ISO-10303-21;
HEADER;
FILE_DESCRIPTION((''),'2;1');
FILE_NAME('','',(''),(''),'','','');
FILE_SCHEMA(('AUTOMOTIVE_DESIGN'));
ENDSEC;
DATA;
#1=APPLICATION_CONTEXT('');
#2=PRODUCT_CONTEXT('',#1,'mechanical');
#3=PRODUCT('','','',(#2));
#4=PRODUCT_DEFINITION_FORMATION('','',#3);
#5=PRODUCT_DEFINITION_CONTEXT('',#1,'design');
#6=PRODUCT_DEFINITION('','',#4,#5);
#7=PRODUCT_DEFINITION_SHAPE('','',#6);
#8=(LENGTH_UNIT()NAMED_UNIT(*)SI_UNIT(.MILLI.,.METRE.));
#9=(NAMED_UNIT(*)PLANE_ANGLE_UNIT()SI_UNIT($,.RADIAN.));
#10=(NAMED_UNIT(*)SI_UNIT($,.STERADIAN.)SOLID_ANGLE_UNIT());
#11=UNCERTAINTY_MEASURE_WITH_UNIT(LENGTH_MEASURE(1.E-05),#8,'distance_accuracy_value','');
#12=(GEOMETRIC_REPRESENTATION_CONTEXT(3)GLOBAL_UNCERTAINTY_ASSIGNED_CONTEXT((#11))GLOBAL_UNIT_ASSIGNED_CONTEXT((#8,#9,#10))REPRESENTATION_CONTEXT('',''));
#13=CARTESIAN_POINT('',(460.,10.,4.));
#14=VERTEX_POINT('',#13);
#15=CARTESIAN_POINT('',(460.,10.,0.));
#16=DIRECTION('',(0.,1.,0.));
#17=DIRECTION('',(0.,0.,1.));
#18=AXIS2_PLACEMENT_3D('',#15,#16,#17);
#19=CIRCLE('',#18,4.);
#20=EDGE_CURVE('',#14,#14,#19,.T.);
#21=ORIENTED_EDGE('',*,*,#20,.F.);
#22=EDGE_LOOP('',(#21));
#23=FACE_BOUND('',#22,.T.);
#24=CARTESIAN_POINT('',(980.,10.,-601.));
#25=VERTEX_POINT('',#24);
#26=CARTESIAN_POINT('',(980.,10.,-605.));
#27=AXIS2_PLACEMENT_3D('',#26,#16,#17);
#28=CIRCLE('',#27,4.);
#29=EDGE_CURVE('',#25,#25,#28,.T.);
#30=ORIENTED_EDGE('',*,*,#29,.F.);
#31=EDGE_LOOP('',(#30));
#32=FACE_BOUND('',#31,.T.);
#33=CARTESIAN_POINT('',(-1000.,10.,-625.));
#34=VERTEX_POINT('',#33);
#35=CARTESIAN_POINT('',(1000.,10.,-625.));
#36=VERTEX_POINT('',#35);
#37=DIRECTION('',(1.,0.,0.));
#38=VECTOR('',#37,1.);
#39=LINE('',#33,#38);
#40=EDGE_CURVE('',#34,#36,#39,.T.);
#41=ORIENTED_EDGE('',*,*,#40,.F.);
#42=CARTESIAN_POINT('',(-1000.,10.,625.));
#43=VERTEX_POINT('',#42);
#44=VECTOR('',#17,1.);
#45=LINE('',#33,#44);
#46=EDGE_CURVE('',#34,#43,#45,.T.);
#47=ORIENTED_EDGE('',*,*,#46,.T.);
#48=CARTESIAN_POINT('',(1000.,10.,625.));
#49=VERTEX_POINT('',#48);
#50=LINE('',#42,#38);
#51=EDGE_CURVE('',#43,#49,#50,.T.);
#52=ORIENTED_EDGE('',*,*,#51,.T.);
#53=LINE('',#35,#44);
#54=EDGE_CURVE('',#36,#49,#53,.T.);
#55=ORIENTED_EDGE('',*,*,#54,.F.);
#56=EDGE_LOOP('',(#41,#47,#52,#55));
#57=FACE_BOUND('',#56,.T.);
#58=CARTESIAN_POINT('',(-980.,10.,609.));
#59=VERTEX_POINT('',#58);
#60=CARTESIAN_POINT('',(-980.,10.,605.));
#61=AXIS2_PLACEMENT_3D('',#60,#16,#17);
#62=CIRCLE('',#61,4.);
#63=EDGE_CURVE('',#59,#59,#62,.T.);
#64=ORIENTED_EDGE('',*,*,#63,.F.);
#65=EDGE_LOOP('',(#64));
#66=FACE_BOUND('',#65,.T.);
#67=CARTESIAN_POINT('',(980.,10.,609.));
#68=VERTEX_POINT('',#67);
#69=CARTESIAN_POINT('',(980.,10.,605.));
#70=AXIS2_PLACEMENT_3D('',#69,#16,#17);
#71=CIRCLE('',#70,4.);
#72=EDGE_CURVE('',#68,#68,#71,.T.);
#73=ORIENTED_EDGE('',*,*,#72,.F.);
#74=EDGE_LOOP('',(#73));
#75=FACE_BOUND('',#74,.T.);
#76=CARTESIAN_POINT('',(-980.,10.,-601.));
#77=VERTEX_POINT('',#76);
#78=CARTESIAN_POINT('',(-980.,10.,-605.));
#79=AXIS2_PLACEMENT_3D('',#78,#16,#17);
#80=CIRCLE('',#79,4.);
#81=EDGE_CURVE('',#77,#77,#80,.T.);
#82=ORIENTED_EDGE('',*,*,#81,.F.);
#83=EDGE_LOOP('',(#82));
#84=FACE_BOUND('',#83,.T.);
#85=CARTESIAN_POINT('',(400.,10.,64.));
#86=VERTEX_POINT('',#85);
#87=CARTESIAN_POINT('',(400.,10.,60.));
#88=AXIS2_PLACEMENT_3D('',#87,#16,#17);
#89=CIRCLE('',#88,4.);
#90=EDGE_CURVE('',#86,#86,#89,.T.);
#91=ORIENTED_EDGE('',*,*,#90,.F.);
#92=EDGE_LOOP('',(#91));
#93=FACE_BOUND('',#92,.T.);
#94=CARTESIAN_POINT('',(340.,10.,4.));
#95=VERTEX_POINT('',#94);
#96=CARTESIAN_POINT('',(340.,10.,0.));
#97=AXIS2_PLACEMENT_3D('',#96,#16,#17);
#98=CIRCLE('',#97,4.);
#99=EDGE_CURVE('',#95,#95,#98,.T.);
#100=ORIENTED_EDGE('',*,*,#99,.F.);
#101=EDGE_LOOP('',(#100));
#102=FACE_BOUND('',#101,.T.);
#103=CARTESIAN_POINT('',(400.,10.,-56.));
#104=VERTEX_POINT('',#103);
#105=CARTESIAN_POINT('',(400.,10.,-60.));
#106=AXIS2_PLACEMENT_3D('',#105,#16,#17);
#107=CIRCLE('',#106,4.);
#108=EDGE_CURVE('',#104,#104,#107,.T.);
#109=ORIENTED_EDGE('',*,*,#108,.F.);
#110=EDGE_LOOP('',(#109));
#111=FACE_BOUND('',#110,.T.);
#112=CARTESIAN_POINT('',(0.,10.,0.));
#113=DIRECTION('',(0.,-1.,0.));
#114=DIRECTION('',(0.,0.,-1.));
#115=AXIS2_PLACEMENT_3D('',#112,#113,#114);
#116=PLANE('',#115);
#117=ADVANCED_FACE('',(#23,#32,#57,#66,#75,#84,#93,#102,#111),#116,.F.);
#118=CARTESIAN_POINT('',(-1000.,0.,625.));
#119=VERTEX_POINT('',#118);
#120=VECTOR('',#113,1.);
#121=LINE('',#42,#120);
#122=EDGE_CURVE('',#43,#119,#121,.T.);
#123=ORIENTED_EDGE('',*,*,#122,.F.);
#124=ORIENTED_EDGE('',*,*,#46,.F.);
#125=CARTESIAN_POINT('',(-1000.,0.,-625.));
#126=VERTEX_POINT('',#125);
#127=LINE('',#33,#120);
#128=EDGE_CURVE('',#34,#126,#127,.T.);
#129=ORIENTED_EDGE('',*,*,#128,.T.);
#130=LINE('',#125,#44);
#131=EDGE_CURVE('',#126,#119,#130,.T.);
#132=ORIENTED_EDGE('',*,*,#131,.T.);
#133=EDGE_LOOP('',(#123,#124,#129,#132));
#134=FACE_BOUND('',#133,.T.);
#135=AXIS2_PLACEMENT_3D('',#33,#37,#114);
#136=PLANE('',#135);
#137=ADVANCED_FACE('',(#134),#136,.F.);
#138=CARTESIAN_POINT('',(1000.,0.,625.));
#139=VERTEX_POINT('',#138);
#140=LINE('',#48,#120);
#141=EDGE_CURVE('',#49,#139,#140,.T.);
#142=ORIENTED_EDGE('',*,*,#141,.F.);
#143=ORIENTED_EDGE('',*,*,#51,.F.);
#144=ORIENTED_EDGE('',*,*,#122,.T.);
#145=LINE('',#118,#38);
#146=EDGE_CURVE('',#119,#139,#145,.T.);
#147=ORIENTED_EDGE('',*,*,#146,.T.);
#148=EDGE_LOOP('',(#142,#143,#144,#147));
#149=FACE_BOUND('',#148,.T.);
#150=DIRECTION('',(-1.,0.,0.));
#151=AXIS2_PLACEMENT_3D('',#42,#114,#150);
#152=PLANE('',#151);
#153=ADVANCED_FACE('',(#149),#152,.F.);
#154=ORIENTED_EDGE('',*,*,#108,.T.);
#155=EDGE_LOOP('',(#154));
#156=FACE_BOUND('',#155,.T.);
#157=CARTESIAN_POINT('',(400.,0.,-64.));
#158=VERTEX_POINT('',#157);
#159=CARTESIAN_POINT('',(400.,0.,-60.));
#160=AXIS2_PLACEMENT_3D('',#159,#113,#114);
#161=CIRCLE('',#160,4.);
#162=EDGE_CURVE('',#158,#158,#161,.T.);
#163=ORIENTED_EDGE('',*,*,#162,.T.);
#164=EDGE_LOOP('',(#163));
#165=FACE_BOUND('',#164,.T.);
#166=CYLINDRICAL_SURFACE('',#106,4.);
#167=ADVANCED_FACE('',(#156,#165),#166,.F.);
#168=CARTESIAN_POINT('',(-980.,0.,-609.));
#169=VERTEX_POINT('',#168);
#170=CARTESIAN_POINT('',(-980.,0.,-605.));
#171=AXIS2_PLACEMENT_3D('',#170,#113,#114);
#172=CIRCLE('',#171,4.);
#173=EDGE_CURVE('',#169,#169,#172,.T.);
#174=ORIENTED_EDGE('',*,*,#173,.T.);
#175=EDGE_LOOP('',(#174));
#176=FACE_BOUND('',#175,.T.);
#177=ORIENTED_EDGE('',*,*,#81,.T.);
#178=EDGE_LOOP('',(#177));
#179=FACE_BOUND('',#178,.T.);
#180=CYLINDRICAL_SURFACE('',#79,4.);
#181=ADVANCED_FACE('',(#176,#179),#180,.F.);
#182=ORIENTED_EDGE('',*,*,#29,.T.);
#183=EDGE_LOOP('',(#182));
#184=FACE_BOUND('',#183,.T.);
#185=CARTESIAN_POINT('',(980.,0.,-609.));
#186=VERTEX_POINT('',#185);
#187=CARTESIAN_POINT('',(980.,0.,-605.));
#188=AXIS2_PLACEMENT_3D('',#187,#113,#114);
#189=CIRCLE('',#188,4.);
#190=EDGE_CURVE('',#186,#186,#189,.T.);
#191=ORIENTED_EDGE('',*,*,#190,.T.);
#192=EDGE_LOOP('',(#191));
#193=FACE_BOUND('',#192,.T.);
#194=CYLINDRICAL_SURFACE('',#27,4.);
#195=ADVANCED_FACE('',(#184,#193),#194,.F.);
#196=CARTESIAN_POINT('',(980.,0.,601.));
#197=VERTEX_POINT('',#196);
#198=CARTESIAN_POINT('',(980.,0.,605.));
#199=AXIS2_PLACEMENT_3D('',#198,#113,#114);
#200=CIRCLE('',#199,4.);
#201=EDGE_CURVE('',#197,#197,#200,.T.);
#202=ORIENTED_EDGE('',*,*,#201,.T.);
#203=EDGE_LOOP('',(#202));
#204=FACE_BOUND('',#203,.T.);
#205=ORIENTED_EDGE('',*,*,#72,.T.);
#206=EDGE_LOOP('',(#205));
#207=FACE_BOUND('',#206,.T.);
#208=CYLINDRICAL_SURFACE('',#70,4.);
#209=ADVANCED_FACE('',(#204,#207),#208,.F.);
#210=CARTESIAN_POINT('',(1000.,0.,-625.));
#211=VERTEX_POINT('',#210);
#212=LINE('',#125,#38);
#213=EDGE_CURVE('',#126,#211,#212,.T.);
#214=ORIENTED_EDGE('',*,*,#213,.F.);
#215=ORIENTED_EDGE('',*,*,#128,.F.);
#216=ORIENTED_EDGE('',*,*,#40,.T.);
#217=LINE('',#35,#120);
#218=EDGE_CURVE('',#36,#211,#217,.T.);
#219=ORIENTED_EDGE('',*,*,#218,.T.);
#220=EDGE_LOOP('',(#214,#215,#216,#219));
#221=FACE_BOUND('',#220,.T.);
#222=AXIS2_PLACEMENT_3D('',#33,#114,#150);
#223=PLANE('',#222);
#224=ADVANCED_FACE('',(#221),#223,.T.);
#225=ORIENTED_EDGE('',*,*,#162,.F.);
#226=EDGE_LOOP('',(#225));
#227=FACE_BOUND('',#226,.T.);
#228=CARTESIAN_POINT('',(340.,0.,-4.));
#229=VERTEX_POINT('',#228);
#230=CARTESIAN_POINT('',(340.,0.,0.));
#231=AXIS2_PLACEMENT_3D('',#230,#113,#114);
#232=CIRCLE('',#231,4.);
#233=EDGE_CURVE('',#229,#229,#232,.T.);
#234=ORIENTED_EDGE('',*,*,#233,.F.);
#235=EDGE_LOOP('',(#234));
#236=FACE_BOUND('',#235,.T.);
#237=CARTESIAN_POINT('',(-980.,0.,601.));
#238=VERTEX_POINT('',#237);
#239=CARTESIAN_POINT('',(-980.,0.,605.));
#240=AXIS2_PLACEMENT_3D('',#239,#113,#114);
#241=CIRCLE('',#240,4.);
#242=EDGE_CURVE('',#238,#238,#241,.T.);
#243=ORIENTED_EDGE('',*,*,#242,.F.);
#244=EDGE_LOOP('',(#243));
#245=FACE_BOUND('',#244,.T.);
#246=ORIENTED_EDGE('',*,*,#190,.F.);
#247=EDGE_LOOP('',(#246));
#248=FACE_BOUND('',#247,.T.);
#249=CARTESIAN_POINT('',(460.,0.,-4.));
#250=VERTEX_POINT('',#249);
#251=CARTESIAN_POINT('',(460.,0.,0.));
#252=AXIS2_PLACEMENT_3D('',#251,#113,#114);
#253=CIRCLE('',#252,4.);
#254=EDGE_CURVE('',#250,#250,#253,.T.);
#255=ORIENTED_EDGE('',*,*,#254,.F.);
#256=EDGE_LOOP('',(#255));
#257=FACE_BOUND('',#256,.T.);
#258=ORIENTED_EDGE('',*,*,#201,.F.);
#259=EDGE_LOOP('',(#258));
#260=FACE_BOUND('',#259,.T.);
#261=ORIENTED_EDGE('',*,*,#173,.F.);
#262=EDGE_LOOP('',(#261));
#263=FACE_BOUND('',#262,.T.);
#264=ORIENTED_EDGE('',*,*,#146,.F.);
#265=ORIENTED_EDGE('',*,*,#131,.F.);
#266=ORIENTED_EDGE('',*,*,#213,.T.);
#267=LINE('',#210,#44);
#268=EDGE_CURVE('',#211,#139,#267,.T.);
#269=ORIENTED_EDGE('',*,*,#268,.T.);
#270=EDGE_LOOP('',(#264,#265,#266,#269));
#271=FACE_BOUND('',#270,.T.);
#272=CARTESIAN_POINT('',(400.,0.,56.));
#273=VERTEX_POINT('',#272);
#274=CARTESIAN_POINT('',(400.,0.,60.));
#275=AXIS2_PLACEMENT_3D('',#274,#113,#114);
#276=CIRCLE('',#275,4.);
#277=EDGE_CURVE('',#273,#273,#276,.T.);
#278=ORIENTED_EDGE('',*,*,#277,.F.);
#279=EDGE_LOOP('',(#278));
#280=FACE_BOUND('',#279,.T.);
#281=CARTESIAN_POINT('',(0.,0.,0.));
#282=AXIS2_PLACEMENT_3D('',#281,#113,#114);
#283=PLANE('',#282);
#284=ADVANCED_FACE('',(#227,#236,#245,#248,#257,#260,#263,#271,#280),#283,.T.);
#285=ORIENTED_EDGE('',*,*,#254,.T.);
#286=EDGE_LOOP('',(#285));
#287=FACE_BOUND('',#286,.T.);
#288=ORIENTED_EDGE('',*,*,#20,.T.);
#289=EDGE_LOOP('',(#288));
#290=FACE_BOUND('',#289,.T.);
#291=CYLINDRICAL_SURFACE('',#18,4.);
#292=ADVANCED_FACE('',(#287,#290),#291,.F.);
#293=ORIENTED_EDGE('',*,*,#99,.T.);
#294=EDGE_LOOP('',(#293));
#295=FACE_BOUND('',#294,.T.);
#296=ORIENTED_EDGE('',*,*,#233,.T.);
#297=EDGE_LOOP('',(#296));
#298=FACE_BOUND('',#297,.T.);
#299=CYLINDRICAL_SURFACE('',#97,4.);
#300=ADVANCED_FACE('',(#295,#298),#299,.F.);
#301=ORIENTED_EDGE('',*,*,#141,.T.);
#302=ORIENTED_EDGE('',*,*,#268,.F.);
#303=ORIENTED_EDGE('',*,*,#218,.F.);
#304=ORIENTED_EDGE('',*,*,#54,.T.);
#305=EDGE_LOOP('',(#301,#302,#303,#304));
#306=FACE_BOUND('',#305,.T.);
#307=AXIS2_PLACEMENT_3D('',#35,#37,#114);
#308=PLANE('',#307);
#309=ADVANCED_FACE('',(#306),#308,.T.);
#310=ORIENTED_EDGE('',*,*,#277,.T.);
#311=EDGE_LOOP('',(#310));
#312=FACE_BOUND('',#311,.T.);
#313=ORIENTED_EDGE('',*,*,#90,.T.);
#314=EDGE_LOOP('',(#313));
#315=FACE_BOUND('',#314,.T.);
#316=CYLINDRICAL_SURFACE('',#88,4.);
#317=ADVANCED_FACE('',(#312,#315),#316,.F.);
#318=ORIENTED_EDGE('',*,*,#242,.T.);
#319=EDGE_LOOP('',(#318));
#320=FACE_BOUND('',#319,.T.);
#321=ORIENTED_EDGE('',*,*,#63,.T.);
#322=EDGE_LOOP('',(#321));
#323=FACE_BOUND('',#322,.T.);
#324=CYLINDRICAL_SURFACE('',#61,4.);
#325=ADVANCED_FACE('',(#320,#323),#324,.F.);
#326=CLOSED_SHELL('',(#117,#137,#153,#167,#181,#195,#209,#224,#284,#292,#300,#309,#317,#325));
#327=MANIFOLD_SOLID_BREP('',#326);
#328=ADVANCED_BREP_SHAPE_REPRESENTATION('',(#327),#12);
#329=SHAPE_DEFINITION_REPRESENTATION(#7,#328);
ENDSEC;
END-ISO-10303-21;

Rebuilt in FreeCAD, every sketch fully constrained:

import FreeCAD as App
import Part
import Sketcher

V = App.Vector

doc = App.newDocument("Part")
body = doc.addObject("PartDesign::Body", "Body")

sketch1 = body.newObject("Sketcher::SketchObject", "Sketch")
sketch1.AttachmentSupport = (doc.getObject("XZ_Plane"), [""])
sketch1.MapMode = "FlatFace"
sketch1.addGeometry(Part.LineSegment(V(-1000, -625, 0), V(-1000, 625, 0)), False)
sketch1.addGeometry(Part.LineSegment(V(-1000, 625, 0), V(1000, 625, 0)), False)
sketch1.addGeometry(Part.LineSegment(V(1000, 625, 0), V(1000, -625, 0)), False)
sketch1.addGeometry(Part.LineSegment(V(1000, -625, 0), V(-1000, -625, 0)), False)
sketch1.addConstraint(Sketcher.Constraint("Coincident", 0, 2, 1, 1))
sketch1.addConstraint(Sketcher.Constraint("Coincident", 1, 2, 2, 1))
sketch1.addConstraint(Sketcher.Constraint("Coincident", 2, 2, 3, 1))
sketch1.addConstraint(Sketcher.Constraint("Coincident", 3, 2, 0, 1))
sketch1.addConstraint(Sketcher.Constraint("Vertical", 0))
sketch1.addConstraint(Sketcher.Constraint("Horizontal", 1))
sketch1.addConstraint(Sketcher.Constraint("Vertical", 2))
sketch1.addConstraint(Sketcher.Constraint("Horizontal", 3))
sketch1.addConstraint(Sketcher.Constraint("Symmetric", 0, 2, 2, 2, -1, 1))
sketch1.addConstraint(Sketcher.Constraint("DistanceX", 1, 1, 1, 2, 2000.0))
sketch1.addConstraint(Sketcher.Constraint("DistanceY", 0, 1, 0, 2, 1250.0))
pad1 = body.newObject("PartDesign::Pad", "Pad")
pad1.Profile = sketch1
pad1.Length = 10
pad1.Reversed = True

sketch2 = body.newObject("Sketcher::SketchObject", "Sketch001")
sketch2.AttachmentSupport = (doc.getObject("XZ_Plane"), [""])
sketch2.MapMode = "FlatFace"
sketch2.AttachmentOffset = App.Placement(V(0, 0, -10), App.Rotation())
sketch2.addGeometry(Part.Circle(V(-980, -605, 0), V(0, 0, 1), 4), False)
sketch2.addGeometry(Part.Circle(V(980, -605, 0), V(0, 0, 1), 4), False)
sketch2.addGeometry(Part.Circle(V(980, 605, 0), V(0, 0, 1), 4), False)
sketch2.addGeometry(Part.Circle(V(-980, 605, 0), V(0, 0, 1), 4), False)
sketch2.addConstraint(Sketcher.Constraint("Equal", 0, 1))
sketch2.addConstraint(Sketcher.Constraint("Equal", 1, 2))
sketch2.addConstraint(Sketcher.Constraint("Equal", 2, 3))
sketch2.addConstraint(Sketcher.Constraint("Symmetric", 0, 3, 2, 3, -1, 1))
sketch2.addConstraint(Sketcher.Constraint("Symmetric", 1, 3, 3, 3, -1, 1))
sketch2.addConstraint(Sketcher.Constraint("Symmetric", 0, 3, 1, 3, -2))
sketch2.addConstraint(Sketcher.Constraint("Diameter", 0, 8.0))
sketch2.addConstraint(Sketcher.Constraint("DistanceX", 0, 3, -1, 1, 980.0))
sketch2.addConstraint(Sketcher.Constraint("DistanceY", 0, 3, -1, 1, 605.0))
doc.recompute()
hole = body.newObject("PartDesign::Hole", "Hole")
hole.Profile = sketch2
hole.ThreadType = "None"
hole.Diameter = 8
hole.DepthType = "Dimension"
hole.Depth = 20
hole.DrillPoint = "Angled"
hole.DrillPointAngle = 118
hole.Reversed = True

sketch3 = body.newObject("Sketcher::SketchObject", "Sketch002")
sketch3.AttachmentSupport = (doc.getObject("XZ_Plane"), [""])
sketch3.MapMode = "FlatFace"
sketch3.AttachmentOffset = App.Placement(V(0, 0, -10), App.Rotation())
sketch3.addGeometry(Part.Circle(V(400, -60, 0), V(0, 0, 1), 4), False)
sketch3.addGeometry(Part.Circle(V(340, 0, 0), V(0, 0, 1), 4), False)
sketch3.addGeometry(Part.Circle(V(400, 60, 0), V(0, 0, 1), 4), False)
sketch3.addGeometry(Part.Circle(V(460, 0, 0), V(0, 0, 1), 4), False)
sketch3.addConstraint(Sketcher.Constraint("Equal", 0, 1))
sketch3.addConstraint(Sketcher.Constraint("Equal", 1, 2))
sketch3.addConstraint(Sketcher.Constraint("Equal", 2, 3))
sketch3.addConstraint(Sketcher.Constraint("Symmetric", 0, 3, 2, 3, -1))
sketch3.addConstraint(Sketcher.Constraint("PointOnObject", 1, 3, -1))
sketch3.addConstraint(Sketcher.Constraint("PointOnObject", 3, 3, -1))
sketch3.addConstraint(Sketcher.Constraint("Diameter", 0, 8.0))
sketch3.addConstraint(Sketcher.Constraint("DistanceX", -1, 1, 0, 3, 400.0))
sketch3.addConstraint(Sketcher.Constraint("DistanceY", 0, 3, -1, 1, 60.0))
sketch3.addConstraint(Sketcher.Constraint("DistanceX", -1, 1, 1, 3, 340.0))
sketch3.addConstraint(Sketcher.Constraint("DistanceX", -1, 1, 3, 3, 460.0))
doc.recompute()
hole2 = body.newObject("PartDesign::Hole", "Hole001")
hole2.Profile = sketch3
hole2.ThreadType = "None"
hole2.Diameter = 8
hole2.DepthType = "Dimension"
hole2.Depth = 20
hole2.DrillPoint = "Angled"
hole2.DrillPointAngle = 118
hole2.Reversed = True

doc.recompute()
